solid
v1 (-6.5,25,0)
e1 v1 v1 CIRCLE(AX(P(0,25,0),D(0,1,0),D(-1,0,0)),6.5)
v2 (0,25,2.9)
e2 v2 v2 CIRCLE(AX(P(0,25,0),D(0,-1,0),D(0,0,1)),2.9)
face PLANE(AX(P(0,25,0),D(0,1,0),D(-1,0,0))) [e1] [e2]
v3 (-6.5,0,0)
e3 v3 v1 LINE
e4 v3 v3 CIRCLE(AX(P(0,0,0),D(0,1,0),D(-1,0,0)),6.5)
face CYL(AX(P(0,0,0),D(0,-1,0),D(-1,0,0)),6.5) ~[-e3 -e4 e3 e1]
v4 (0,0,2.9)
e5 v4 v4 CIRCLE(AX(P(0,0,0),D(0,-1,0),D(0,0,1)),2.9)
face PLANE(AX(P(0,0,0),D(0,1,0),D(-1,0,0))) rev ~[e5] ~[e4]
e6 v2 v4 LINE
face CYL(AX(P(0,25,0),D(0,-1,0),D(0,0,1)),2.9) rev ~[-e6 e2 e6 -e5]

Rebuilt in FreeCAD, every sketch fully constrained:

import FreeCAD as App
import Part
import Sketcher
from FreeCAD import Vector

doc = App.newDocument("Part")
body = doc.addObject("PartDesign::Body", "Body")

sketch1 = body.newObject("Sketcher::SketchObject", "Sketch")
sketch1.AttachmentSupport = (doc.getObject("XZ_Plane"), [""])
sketch1.MapMode = "FlatFace"
sketch1.addGeometry(Part.Circle(Vector(0, 0, 0), Vector(0, 0, 1), 6), False)
sketch1.addConstraint([
    Sketcher.Constraint("Coincident", 0, 3, -1, 1),
    Sketcher.Constraint("Diameter", 0, 13.0),
])
pad1 = body.newObject("PartDesign::Pad", "Pad")
pad1.Profile = sketch1
pad1.Length = 25
pad1.Reversed = True

sketch2 = body.newObject("Sketcher::SketchObject", "Sketch001")
sketch2.AttachmentSupport = (doc.getObject("XZ_Plane"), [""])
sketch2.MapMode = "FlatFace"
sketch2.AttachmentOffset = App.Placement(Vector(0, 0, -25), App.Rotation())
sketch2.addGeometry(Part.Circle(Vector(0, 0, 0), Vector(0, 0, 1), 2.9), False)
sketch2.addConstraint([
    Sketcher.Constraint("Coincident", 0, 3, -1, 1),
    Sketcher.Constraint("Diameter", 0, 5.8),
])
doc.recompute()
hole = body.newObject("PartDesign::Hole", "Hole")
hole.Profile = sketch2
hole.ThreadType = "None"
hole.Diameter = 5.8
hole.DepthType = "ThroughAll"
hole.Reversed = True

doc.recompute()
